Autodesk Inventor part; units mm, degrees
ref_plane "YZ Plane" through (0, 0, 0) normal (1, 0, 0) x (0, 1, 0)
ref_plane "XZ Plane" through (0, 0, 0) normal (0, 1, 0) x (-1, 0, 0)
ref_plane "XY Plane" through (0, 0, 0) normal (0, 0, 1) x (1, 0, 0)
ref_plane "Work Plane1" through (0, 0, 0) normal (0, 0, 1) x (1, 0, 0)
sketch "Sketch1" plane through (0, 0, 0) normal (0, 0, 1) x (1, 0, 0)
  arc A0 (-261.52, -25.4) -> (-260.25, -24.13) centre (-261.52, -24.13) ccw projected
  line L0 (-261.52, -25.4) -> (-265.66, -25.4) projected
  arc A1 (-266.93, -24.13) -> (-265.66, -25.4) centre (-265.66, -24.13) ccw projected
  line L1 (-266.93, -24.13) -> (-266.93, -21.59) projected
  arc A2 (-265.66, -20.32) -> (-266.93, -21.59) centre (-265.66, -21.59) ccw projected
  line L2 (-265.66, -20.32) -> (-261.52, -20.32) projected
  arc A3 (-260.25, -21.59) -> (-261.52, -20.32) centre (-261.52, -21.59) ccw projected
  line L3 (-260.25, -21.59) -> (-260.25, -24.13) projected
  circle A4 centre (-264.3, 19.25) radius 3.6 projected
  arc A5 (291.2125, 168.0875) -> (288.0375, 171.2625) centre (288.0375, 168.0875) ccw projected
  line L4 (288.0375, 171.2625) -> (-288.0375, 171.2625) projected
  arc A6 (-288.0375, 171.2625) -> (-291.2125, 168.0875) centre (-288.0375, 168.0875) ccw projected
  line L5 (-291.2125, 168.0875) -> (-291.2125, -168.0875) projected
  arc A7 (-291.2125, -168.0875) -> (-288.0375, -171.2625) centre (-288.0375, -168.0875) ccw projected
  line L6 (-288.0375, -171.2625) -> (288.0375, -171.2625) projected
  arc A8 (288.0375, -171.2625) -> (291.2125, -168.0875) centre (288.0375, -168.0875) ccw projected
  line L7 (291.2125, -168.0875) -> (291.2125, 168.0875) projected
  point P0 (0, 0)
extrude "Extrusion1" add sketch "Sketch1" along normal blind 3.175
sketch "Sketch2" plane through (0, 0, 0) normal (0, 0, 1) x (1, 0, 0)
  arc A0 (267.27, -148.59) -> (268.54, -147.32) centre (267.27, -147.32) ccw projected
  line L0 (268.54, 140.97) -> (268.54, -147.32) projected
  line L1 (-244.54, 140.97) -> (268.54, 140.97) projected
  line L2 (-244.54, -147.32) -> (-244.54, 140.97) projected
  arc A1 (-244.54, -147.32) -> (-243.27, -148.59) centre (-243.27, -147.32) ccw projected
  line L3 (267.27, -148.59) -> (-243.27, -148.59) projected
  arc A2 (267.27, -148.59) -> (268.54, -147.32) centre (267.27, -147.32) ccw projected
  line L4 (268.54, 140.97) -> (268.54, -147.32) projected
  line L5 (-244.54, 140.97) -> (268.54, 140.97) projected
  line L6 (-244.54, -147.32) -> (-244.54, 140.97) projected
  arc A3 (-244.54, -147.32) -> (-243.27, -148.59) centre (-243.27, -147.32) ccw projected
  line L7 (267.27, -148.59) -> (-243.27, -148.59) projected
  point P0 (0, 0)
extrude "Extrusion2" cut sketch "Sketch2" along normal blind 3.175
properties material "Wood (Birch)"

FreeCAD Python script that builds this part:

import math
import FreeCAD as App
import Part
import Sketcher
Q = App.Units.Quantity

doc = App.newDocument("Part")
body = doc.addObject("PartDesign::Body", "Body")

sketch1 = body.newObject("Sketcher::SketchObject", "Sketch")
sketch1.AttachmentSupport = (doc.getObject("XY_Plane"), [""])
sketch1.MapMode = "FlatFace"
sketch1.addGeometry(Part.LineSegment(App.Vector(291.2, -168.1, 0), App.Vector(291.2, 168.1, 0)), False)
sketch1.addGeometry(Part.ArcOfCircle(Part.Circle(App.Vector(288, 168.1, 0), App.Vector(0, 0, 1), 3.2), math.radians(0), math.radians(90)), False)
sketch1.addGeometry(Part.LineSegment(App.Vector(288, 171.3, 0), App.Vector(-288, 171.3, 0)), False)
sketch1.addGeometry(Part.ArcOfCircle(Part.Circle(App.Vector(-288, 168.1, 0), App.Vector(0, 0, 1), 3.2), math.radians(90), math.radians(180)), False)
sketch1.addGeometry(Part.LineSegment(App.Vector(-291.2, 168.1, 0), App.Vector(-291.2, -168.1, 0)), False)
sketch1.addGeometry(Part.ArcOfCircle(Part.Circle(App.Vector(-288, -168.1, 0), App.Vector(0, 0, 1), 3.2), math.radians(180), math.radians(270)), False)
sketch1.addGeometry(Part.LineSegment(App.Vector(-288, -171.3, 0), App.Vector(288, -171.3, 0)), False)
sketch1.addGeometry(Part.ArcOfCircle(Part.Circle(App.Vector(288, -168.1, 0), App.Vector(0, 0, 1), 3.2), math.radians(-90), math.radians(0)), False)
sketch1.addGeometry(Part.ArcOfCircle(Part.Circle(App.Vector(-261.5, -24.1, 0), App.Vector(0, 0, 1), 1.3), math.radians(-90), math.radians(0)), False)
sketch1.addGeometry(Part.LineSegment(App.Vector(-261.5, -25.4, 0), App.Vector(-265.7, -25.4, 0)), False)
sketch1.addGeometry(Part.ArcOfCircle(Part.Circle(App.Vector(-265.7, -24.1, 0), App.Vector(0, 0, 1), 1.3), math.radians(180), math.radians(270)), False)
sketch1.addGeometry(Part.LineSegment(App.Vector(-266.9, -24.1, 0), App.Vector(-266.9, -21.6, 0)), False)
sketch1.addGeometry(Part.ArcOfCircle(Part.Circle(App.Vector(-265.7, -21.6, 0), App.Vector(0, 0, 1), 1.3), math.radians(90), math.radians(180)), False)
sketch1.addGeometry(Part.LineSegment(App.Vector(-265.7, -20.3, 0), App.Vector(-261.5, -20.3, 0)), False)
sketch1.addGeometry(Part.ArcOfCircle(Part.Circle(App.Vector(-261.5, -21.6, 0), App.Vector(0, 0, 1), 1.3), math.radians(0), math.radians(90)), False)
sketch1.addGeometry(Part.LineSegment(App.Vector(-260.2, -21.6, 0), App.Vector(-260.2, -24.1, 0)), False)
sketch1.addGeometry(Part.Circle(App.Vector(-264.3, 19.2, 0), App.Vector(0, 0, 1), 3.6), False)
sketch1.addConstraint(Sketcher.Constraint("Tangent", 0, 2, 1, 1))
sketch1.addConstraint(Sketcher.Constraint("Tangent", 1, 2, 2, 1))
sketch1.addConstraint(Sketcher.Constraint("Tangent", 2, 2, 3, 1))
sketch1.addConstraint(Sketcher.Constraint("Tangent", 3, 2, 4, 1))
sketch1.addConstraint(Sketcher.Constraint("Tangent", 4, 2, 5, 1))
sketch1.addConstraint(Sketcher.Constraint("Tangent", 5, 2, 6, 1))
sketch1.addConstraint(Sketcher.Constraint("Tangent", 6, 2, 7, 1))
sketch1.addConstraint(Sketcher.Constraint("Tangent", 7, 2, 0, 1))
sketch1.addConstraint(Sketcher.Constraint("Tangent", 8, 1, 9, 1))
sketch1.addConstraint(Sketcher.Constraint("Tangent", 9, 2, 10, 2))
sketch1.addConstraint(Sketcher.Constraint("Tangent", 10, 1, 11, 1))
sketch1.addConstraint(Sketcher.Constraint("Tangent", 11, 2, 12, 2))
sketch1.addConstraint(Sketcher.Constraint("Tangent", 12, 1, 13, 1))
sketch1.addConstraint(Sketcher.Constraint("Tangent", 13, 2, 14, 2))
sketch1.addConstraint(Sketcher.Constraint("Tangent", 14, 1, 15, 1))
sketch1.addConstraint(Sketcher.Constraint("Tangent", 15, 2, 8, 2))
sketch1.addConstraint(Sketcher.Constraint("Vertical", 0))
sketch1.addConstraint(Sketcher.Constraint("Horizontal", 2))
sketch1.addConstraint(Sketcher.Constraint("Vertical", 4))
sketch1.addConstraint(Sketcher.Constraint("Horizontal", 6))
sketch1.addConstraint(Sketcher.Constraint("Horizontal", 9))
sketch1.addConstraint(Sketcher.Constraint("Vertical", 11))
sketch1.addConstraint(Sketcher.Constraint("Horizontal", 13))
sketch1.addConstraint(Sketcher.Constraint("Vertical", 15))
sketch1.addConstraint(Sketcher.Constraint("Equal", 1, 3))
sketch1.addConstraint(Sketcher.Constraint("Equal", 3, 5))
sketch1.addConstraint(Sketcher.Constraint("Equal", 5, 7))
sketch1.addConstraint(Sketcher.Constraint("Equal", 8, 10))
sketch1.addConstraint(Sketcher.Constraint("Equal", 10, 12))
sketch1.addConstraint(Sketcher.Constraint("Equal", 12, 14))
sketch1.addConstraint(Sketcher.Constraint("Symmetric", 1, 3, 5, 3, -1, 1))
sketch1.addConstraint(Sketcher.Constraint("Radius", 8, Q("0.05 in")))
sketch1.addConstraint(Sketcher.Constraint("DistanceY", 11, 1, 11, 2, Q("0.1 in")))
sketch1.addConstraint(Sketcher.Constraint("DistanceY", 8, 1, -1, 1, Q("1 in")))
sketch1.addConstraint(Sketcher.Constraint("Radius", 1, Q("0.125 in")))
sketch1.addConstraint(Sketcher.Constraint("Diameter", 16, 7.2))
sketch1.addConstraint(Sketcher.Constraint("DistanceX", 9, 2, 9, 1, Q("0.163 in")))
sketch1.addConstraint(Sketcher.Constraint("DistanceX", 5, 3, 8, 3, Q("1.044 in")))
sketch1.addConstraint(Sketcher.Constraint("DistanceX", 2, 2, 2, 1, 576.075))
sketch1.addConstraint(Sketcher.Constraint("DistanceY", 0, 1, 0, 2, 336.175))
sketch1.addConstraint(Sketcher.Constraint("DistanceX", 16, 3, -1, 1, Q("10.4055 in")))
sketch1.addConstraint(Sketcher.Constraint("DistanceY", -1, 1, 16, 3, 19.25))
pad1 = body.newObject("PartDesign::Pad", "Pad")
pad1.Profile = sketch1
pad1.Length = Q("0.125 in")

sketch2 = body.newObject("Sketcher::SketchObject", "Sketch001")
sketch2.AttachmentSupport = (doc.getObject("XY_Plane"), [""])
sketch2.MapMode = "FlatFace"
sketch2.addGeometry(Part.LineSegment(App.Vector(-243.3, -148.6, 0), App.Vector(267.3, -148.6, 0)), False)
sketch2.addGeometry(Part.ArcOfCircle(Part.Circle(App.Vector(267.3, -147.3, 0), App.Vector(0, 0, 1), 1.3), math.radians(-90), math.radians(0)), False)
sketch2.addGeometry(Part.LineSegment(App.Vector(268.5, -147.3, 0), App.Vector(268.5, 141, 0)), False)
sketch2.addGeometry(Part.LineSegment(App.Vector(268.5, 141, 0), App.Vector(-244.5, 141, 0)), False)
sketch2.addGeometry(Part.LineSegment(App.Vector(-244.5, 141, 0), App.Vector(-244.5, -147.3, 0)), False)
sketch2.addGeometry(Part.ArcOfCircle(Part.Circle(App.Vector(-243.3, -147.3, 0), App.Vector(0, 0, 1), 1.3), math.radians(180), math.radians(270)), False)
sketch2.addConstraint(Sketcher.Constraint("Tangent", 0, 2, 1, 1))
sketch2.addConstraint(Sketcher.Constraint("Tangent", 1, 2, 2, 1))
sketch2.addConstraint(Sketcher.Constraint("Coincident", 2, 2, 3, 1))
sketch2.addConstraint(Sketcher.Constraint("Coincident", 3, 2, 4, 1))
sketch2.addConstraint(Sketcher.Constraint("Tangent", 4, 2, 5, 1))
sketch2.addConstraint(Sketcher.Constraint("Tangent", 5, 2, 0, 1))
sketch2.addConstraint(Sketcher.Constraint("Horizontal", 0))
sketch2.addConstraint(Sketcher.Constraint("Vertical", 2))
sketch2.addConstraint(Sketcher.Constraint("Horizontal", 3))
sketch2.addConstraint(Sketcher.Constraint("Vertical", 4))
sketch2.addConstraint(Sketcher.Constraint("Equal", 1, 5))
sketch2.addConstraint(Sketcher.Constraint("Radius", 1, Q("0.05 in")))
sketch2.addConstraint(Sketcher.Constraint("DistanceX", 0, 1, 0, 2, Q("20.1 in")))
sketch2.addConstraint(Sketcher.Constraint("DistanceY", 2, 1, 2, 2, Q("11.35 in")))
sketch2.addConstraint(Sketcher.Constraint("DistanceY", 1, 3, -1, 1, Q("5.8 in")))
sketch2.addConstraint(Sketcher.Constraint("DistanceX", -1, 1, 1, 3, 267.27))
pocket1 = body.newObject("PartDesign::Pocket", "Pocket")
pocket1.Profile = sketch2
pocket1.Length = Q("0.125 in")
pocket1.Reversed = True

doc.recompute()
